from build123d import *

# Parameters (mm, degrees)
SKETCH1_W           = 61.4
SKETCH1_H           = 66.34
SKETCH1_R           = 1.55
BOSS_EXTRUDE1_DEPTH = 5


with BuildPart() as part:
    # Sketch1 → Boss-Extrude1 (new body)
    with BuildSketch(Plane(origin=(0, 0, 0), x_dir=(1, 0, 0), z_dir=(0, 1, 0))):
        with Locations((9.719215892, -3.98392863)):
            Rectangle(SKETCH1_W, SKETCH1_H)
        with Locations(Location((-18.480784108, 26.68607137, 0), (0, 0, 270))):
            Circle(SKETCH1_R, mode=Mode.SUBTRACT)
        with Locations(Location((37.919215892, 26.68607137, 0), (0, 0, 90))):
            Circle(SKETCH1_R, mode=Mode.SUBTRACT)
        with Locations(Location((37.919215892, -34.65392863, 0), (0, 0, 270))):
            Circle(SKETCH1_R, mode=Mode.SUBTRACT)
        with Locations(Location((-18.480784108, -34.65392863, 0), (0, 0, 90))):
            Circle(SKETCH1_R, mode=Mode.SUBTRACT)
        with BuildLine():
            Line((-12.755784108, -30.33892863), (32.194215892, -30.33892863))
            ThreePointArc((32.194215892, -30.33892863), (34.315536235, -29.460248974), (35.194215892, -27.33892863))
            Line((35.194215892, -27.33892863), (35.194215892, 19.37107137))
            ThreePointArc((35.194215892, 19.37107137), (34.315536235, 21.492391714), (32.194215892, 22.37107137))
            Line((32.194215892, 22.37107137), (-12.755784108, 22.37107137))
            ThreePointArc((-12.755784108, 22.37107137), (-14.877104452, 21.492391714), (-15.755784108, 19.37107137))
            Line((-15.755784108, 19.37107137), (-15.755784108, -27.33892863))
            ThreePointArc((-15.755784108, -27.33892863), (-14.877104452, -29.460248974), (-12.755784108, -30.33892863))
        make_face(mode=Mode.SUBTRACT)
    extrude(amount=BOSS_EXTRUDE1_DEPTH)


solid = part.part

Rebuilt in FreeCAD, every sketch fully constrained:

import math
import FreeCAD as App
import Part
import Sketcher

V = App.Vector
Q = App.Units.Quantity


def add_polygon(sketch, points):
    """Adds a closed chain of lines whose ends are joined by coincident constraints."""
    first, n = sketch.GeometryCount, len(points)
    for a, b in zip(points, points[1:] + points[:1]):
        sketch.addGeometry(Part.LineSegment(App.Vector(*a, 0), App.Vector(*b, 0)), False)
    for i in range(n):
        sketch.addConstraint(Sketcher.Constraint("Coincident", first + i, 2, first + (i + 1) % n, 1))

doc = App.newDocument("Part")
body = doc.addObject("PartDesign::Body", "Body")

sketch1 = body.newObject("Sketcher::SketchObject", "Sketch")
sketch1.AttachmentSupport = (doc.getObject("XZ_Plane"), [""])
sketch1.MapMode = "FlatFace"
add_polygon(sketch1, [(-21, -29.2), (-21, 37.2), (40.4, 37.2), (40.4, -29.2)])
sketch1.addGeometry(Part.Circle(V(-18.5, 34.7, 0), V(0, 0, 1), 1.6), False)
sketch1.addGeometry(Part.Circle(V(37.9, 34.7, 0), V(0, 0, 1), 1.6), False)
sketch1.addGeometry(Part.Circle(V(-18.5, -26.7, 0), V(0, 0, 1), 1.6), False)
sketch1.addGeometry(Part.LineSegment(V(32.2, 30.3, 0), V(-12.8, 30.3, 0)), False)
sketch1.addGeometry(Part.ArcOfCircle(Part.Circle(V(-12.8, 27.3, 0), V(0, 0, 1), 3), math.radians(90), math.radians(180)), False)
sketch1.addGeometry(Part.LineSegment(V(-15.8, 27.3, 0), V(-15.8, -19.4, 0)), False)
sketch1.addGeometry(Part.ArcOfCircle(Part.Circle(V(-12.8, -19.4, 0), V(0, 0, 1), 3), math.radians(180), math.radians(270)), False)
sketch1.addGeometry(Part.LineSegment(V(-12.8, -22.4, 0), V(32.2, -22.4, 0)), False)
sketch1.addGeometry(Part.ArcOfCircle(Part.Circle(V(32.2, -19.4, 0), V(0, 0, 1), 3), math.radians(-90), math.radians(0)), False)
sketch1.addGeometry(Part.LineSegment(V(35.2, -19.4, 0), V(35.2, 27.3, 0)), False)
sketch1.addGeometry(Part.ArcOfCircle(Part.Circle(V(32.2, 27.3, 0), V(0, 0, 1), 3), math.radians(0), math.radians(90)), False)
sketch1.addGeometry(Part.Circle(V(37.9, -26.7, 0), V(0, 0, 1), 1.6), False)
sketch1.addConstraint([
    Sketcher.Constraint("Tangent", 7, 2, 8, 1),
    Sketcher.Constraint("Tangent", 8, 2, 9, 1),
    Sketcher.Constraint("Tangent", 9, 2, 10, 1),
    Sketcher.Constraint("Tangent", 10, 2, 11, 1),
    Sketcher.Constraint("Tangent", 11, 2, 12, 1),
    Sketcher.Constraint("Tangent", 12, 2, 13, 1),
    Sketcher.Constraint("Tangent", 13, 2, 14, 1),
    Sketcher.Constraint("Tangent", 14, 2, 7, 1),
    Sketcher.Constraint("Vertical", 0),
    Sketcher.Constraint("Horizontal", 1),
    Sketcher.Constraint("Vertical", 2),
    Sketcher.Constraint("Horizontal", 3),
    Sketcher.Constraint("Horizontal", 7),
    Sketcher.Constraint("Vertical", 9),
    Sketcher.Constraint("Horizontal", 11),
    Sketcher.Constraint("Vertical", 13),
    Sketcher.Constraint("Equal", 4, 5),
    Sketcher.Constraint("Equal", 5, 6),
    Sketcher.Constraint("Equal", 8, 10),
    Sketcher.Constraint("Equal", 10, 12),
    Sketcher.Constraint("Equal", 12, 14),
    Sketcher.Constraint("Equal", 6, 15),
    Sketcher.Constraint("Horizontal", 4, 3, 5, 3),
    Sketcher.Constraint("Horizontal", 6, 3, 15, 3),
    Sketcher.Constraint("Vertical", 4, 3, 6, 3),
    Sketcher.Constraint("Vertical", 5, 3, 15, 3),
    Sketcher.Constraint("Radius", 8, Q("3 mm")),
    Sketcher.Constraint("Diameter", 4, Q("3.1 mm")),
    Sketcher.Constraint("DistanceX", 1, 1, 1, 2, Q("61.4 mm")),
    Sketcher.Constraint("DistanceX", 7, 2, 7, 1, Q("44.95 mm")),
    Sketcher.Constraint("DistanceY", 0, 1, 0, 2, Q("66.34 mm")),
    Sketcher.Constraint("DistanceY", 9, 2, 9, 1, Q("46.71 mm")),
    Sketcher.Constraint("DistanceX", 4, 3, 5, 3, Q("56.4 mm")),
    Sketcher.Constraint("DistanceX", 0, 2, 4, 3, Q("2.5 mm")),
    Sketcher.Constraint("DistanceY", 4, 3, 0, 2, Q("2.5 mm")),
    Sketcher.Constraint("DistanceY", 2, 2, 15, 3, Q("2.5 mm")),
    Sketcher.Constraint("DistanceX", 4, 3, 8, 3, Q("5.725 mm")),
    Sketcher.Constraint("DistanceY", 8, 3, 4, 3, Q("7.315 mm")),
    Sketcher.Constraint("DistanceY", -1, 1, 4, 3, Q("34.653929 mm")),
    Sketcher.Constraint("DistanceX", 4, 3, -1, 1, Q("18.480784 mm")),
])
pad1 = body.newObject("PartDesign::Pad", "Pad")
pad1.Profile = sketch1
pad1.Length = 5
pad1.Reversed = True

doc.recompute()
